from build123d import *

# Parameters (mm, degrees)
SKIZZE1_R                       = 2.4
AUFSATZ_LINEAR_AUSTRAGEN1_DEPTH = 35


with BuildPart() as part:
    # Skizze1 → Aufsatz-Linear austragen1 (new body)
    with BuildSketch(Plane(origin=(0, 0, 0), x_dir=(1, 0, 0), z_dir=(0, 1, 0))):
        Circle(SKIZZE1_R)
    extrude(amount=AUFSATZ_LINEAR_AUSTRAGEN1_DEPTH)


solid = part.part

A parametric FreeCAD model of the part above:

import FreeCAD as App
import Part
import Sketcher
from FreeCAD import Vector
Q = App.Units.Quantity

doc = App.newDocument("Part")
body = doc.addObject("PartDesign::Body", "Body")

# Sketch on XZ plane
sketch1 = body.newObject("Sketcher::SketchObject", "Sketch")
sketch1.AttachmentSupport = (doc.getObject("XZ_Plane"), [""])
sketch1.MapMode = "FlatFace"
sketch1.addGeometry(Part.Circle(Vector(0, 0, 0), Vector(0, 0, 1), 2.4), False)
sketch1.addConstraint([
    Sketcher.Constraint("Coincident", 0, 3, -1, 1),
    Sketcher.Constraint("Diameter", 0, Q("4.8 mm")),
])
pad1 = body.newObject("PartDesign::Pad", "Pad")
pad1.Profile = sketch1
pad1.Length = 35
pad1.Reversed = True

doc.recompute()
